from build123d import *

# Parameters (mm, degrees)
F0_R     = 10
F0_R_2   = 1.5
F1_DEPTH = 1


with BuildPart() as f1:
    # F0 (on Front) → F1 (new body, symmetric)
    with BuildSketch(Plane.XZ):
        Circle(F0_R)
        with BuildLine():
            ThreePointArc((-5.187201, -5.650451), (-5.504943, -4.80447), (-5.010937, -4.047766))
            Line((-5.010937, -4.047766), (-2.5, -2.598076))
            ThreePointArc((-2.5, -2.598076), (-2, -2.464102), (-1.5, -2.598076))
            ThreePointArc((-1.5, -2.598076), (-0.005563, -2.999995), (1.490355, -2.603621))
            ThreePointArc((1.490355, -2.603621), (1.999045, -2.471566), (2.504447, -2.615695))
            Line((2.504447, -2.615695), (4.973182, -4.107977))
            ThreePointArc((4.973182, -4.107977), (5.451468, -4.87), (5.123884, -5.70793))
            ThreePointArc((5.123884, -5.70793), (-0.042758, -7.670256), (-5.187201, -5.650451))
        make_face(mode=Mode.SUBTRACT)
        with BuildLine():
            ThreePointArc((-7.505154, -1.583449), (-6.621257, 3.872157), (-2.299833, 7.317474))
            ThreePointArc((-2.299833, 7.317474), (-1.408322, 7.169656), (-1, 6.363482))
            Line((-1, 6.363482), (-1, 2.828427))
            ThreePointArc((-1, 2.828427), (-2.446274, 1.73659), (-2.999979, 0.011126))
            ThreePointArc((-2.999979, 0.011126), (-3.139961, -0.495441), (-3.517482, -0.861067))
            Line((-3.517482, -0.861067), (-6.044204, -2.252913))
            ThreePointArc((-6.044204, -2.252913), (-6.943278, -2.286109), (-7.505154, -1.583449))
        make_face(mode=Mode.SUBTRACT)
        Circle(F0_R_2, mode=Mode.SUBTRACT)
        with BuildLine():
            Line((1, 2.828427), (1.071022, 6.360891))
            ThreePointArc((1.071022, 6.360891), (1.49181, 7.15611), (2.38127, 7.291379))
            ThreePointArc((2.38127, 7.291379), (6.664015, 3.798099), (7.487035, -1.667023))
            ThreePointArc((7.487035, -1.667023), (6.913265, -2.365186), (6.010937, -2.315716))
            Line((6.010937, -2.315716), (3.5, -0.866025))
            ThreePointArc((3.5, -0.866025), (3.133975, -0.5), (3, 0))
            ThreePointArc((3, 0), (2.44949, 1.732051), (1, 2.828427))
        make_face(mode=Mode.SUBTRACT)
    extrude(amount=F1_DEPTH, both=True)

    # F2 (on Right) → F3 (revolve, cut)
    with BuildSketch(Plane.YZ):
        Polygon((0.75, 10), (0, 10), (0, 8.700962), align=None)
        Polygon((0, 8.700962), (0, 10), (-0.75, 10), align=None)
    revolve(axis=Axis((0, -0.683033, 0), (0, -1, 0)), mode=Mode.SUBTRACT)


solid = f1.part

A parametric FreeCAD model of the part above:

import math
import FreeCAD as App
import Part
import Sketcher

V = App.Vector
Q = App.Units.Quantity

doc = App.newDocument("Part")
body = doc.addObject("PartDesign::Body", "Body")

sketch1 = body.newObject("Sketcher::SketchObject", "Sketch")
sketch1.AttachmentSupport = (doc.getObject("XZ_Plane"), [""])
sketch1.MapMode = "FlatFace"
sketch1.addGeometry([
    Part.Circle(V(0, 0, 0), V(0, 0, 1), 10),
    Part.ArcOfCircle(Part.Circle(V(0, 0, 0), V(0, 0, 1), 7.7), math.radians(-133), math.radians(-48)),
    Part.ArcOfCircle(Part.Circle(V(-4.5, -4.9, 0), V(0, 0, 1), 1), math.radians(120), math.radians(227)),
    Part.LineSegment(V(-5, -4, 0), V(-2.5, -2.6, 0)),
    Part.ArcOfCircle(Part.Circle(V(-2, -3.5, 0), V(0, 0, 1), 1), math.radians(60), math.radians(120)),
    Part.ArcOfCircle(Part.Circle(V(0, 0, 0), V(0, 0, 1), 3), math.radians(-120), math.radians(-60)),
    Part.ArcOfCircle(Part.Circle(V(2, -3.5, 0), V(0, 0, 1), 1), math.radians(59), math.radians(120)),
    Part.LineSegment(V(2.5, -2.6, 0), V(5, -4.1, 0)),
    Part.ArcOfCircle(Part.Circle(V(4.5, -5, 0), V(0, 0, 1), 1), math.radians(-48), math.radians(59)),
    Part.ArcOfCircle(Part.Circle(V(-6.5, -1.4, 0), V(0, 0, 1), 1), math.radians(-168), math.radians(-61)),
    Part.ArcOfCircle(Part.Circle(V(0, 0, 0), V(0, 0, 1), 7.7), math.radians(107), math.radians(192)),
    Part.ArcOfCircle(Part.Circle(V(-2, 6.4, 0), V(0, 0, 1), 1), math.radians(0), math.radians(107)),
    Part.LineSegment(V(-1, 6.4, 0), V(-1, 2.8, 0)),
    Part.ArcOfCircle(Part.Circle(V(0, 0, 0), V(0, 0, 1), 3), math.radians(109), math.radians(180)),
    Part.ArcOfCircle(Part.Circle(V(-4, 0, 0), V(0, 0, 1), 1), math.radians(-61), math.radians(0)),
    Part.LineSegment(V(-3.5, -0.9, 0), V(-6, -2.3, 0)),
    Part.Circle(V(0, 0, 0), V(0, 0, 1), 1.5),
    Part.ArcOfCircle(Part.Circle(V(0, 0, 0), V(0, 0, 1), 3), math.radians(0), math.radians(71)),
    Part.LineSegment(V(1, 2.8, 0), V(1.1, 6.4, 0)),
    Part.ArcOfCircle(Part.Circle(V(2.1, 6.3, 0), V(0, 0, 1), 1), math.radians(72), math.radians(179)),
    Part.ArcOfCircle(Part.Circle(V(0, 0, 0), V(0, 0, 1), 7.7), math.radians(-13), math.radians(72)),
    Part.ArcOfCircle(Part.Circle(V(6.5, -1.4, 0), V(0, 0, 1), 1), math.radians(-120), math.radians(-13)),
    Part.LineSegment(V(6, -2.3, 0), V(3.5, -0.9, 0)),
    Part.ArcOfCircle(Part.Circle(V(4, 0, 0), V(0, 0, 1), 1), math.radians(-180), math.radians(-120)),
], False)
sketch1.addConstraint([
    Sketcher.Constraint("Tangent", 1, 1, 2, 2),
    Sketcher.Constraint("Tangent", 2, 1, 3, 1),
    Sketcher.Constraint("Coincident", 3, 2, 4, 2),
    Sketcher.Constraint("Coincident", 4, 1, 5, 1),
    Sketcher.Constraint("Tangent", 5, 2, 6, 2),
    Sketcher.Constraint("Tangent", 6, 1, 7, 1),
    Sketcher.Constraint("Tangent", 7, 2, 8, 2),
    Sketcher.Constraint("Tangent", 8, 1, 1, 2),
    Sketcher.Constraint("Tangent", 9, 1, 10, 2),
    Sketcher.Constraint("Tangent", 10, 1, 11, 2),
    Sketcher.Constraint("Tangent", 11, 1, 12, 1),
    Sketcher.Constraint("Coincident", 12, 2, 13, 1),
    Sketcher.Constraint("Tangent", 13, 2, 14, 2),
    Sketcher.Constraint("Tangent", 14, 1, 15, 1),
    Sketcher.Constraint("Tangent", 15, 2, 9, 2),
    Sketcher.Constraint("Coincident", 17, 2, 18, 1),
    Sketcher.Constraint("Tangent", 18, 2, 19, 2),
    Sketcher.Constraint("Tangent", 19, 1, 20, 2),
    Sketcher.Constraint("Tangent", 20, 1, 21, 2),
    Sketcher.Constraint("Tangent", 21, 1, 22, 1),
    Sketcher.Constraint("Tangent", 22, 2, 23, 2),
    Sketcher.Constraint("Tangent", 23, 1, 17, 1),
    Sketcher.Constraint("Vertical", 12),
    Sketcher.Constraint("Coincident", 0, 3, -1, 1),
    Sketcher.Constraint("Coincident", 1, 3, -1, 1),
    Sketcher.Constraint("Coincident", 5, 3, -1, 1),
    Sketcher.Constraint("Coincident", 10, 3, -1, 1),
    Sketcher.Constraint("Coincident", 13, 3, -1, 1),
    Sketcher.Constraint("Coincident", 16, 3, -1, 1),
    Sketcher.Constraint("Coincident", 17, 3, -1, 1),
    Sketcher.Constraint("Coincident", 20, 3, -1, 1),
    Sketcher.Constraint("Equal", 4, 6),
    Sketcher.Constraint("Equal", 6, 8),
    Sketcher.Constraint("Equal", 8, 9),
    Sketcher.Constraint("Equal", 9, 11),
    Sketcher.Constraint("Equal", 5, 13),
    Sketcher.Constraint("Equal", 11, 14),
    Sketcher.Constraint("Equal", 13, 17),
    Sketcher.Constraint("Equal", 14, 19),
    Sketcher.Constraint("Equal", 10, 20),
    Sketcher.Constraint("Equal", 19, 21),
    Sketcher.Constraint("Equal", 21, 23),
    Sketcher.Constraint("PointOnObject", 23, 3, -1),
    Sketcher.Constraint("Horizontal", 3, 2, 4, 1),
    Sketcher.Constraint("Horizontal", 12, 2, 17, 2),
    Sketcher.Constraint("Vertical", 4, 3, 11, 3),
    Sketcher.Constraint("Equal", 7, 15),
    Sketcher.Constraint("Equal", 3, 22),
    Sketcher.Constraint("Diameter", 0, Q("20 mm")),
    Sketcher.Constraint("Diameter", 16, Q("3 mm")),
    Sketcher.Constraint("Radius", 2, Q("1.000001 mm")),
    Sketcher.Constraint("Radius", 5, Q("2.999998 mm")),
    Sketcher.Constraint("Radius", 8, Q("1 mm")),
    Sketcher.Constraint("Angle", 3, Q("29.999997 deg")),
    Sketcher.Constraint("Angle", 22, Q("149.999986 deg")),
    Sketcher.Constraint("DistanceX", 4, 3, -1, 1, Q("2 mm")),
    Sketcher.Constraint("DistanceX", 3, 2, 4, 1, Q("1 mm")),
    Sketcher.Constraint("Radius", 1, Q("7.670374 mm")),
    Sketcher.Constraint("DistanceY", 1, 1, 9, 1, Q("4.067002 mm")),
    Sketcher.Constraint("DistanceY", 2, 1, 14, 3, Q("4.0626 mm")),
    Sketcher.Constraint("DistanceY", 8, 3, 7, 2, Q("0.8558 mm")),
    Sketcher.Constraint("DistanceY", 19, 3, 18, 2, Q("0.020101 mm")),
])
pad1 = body.newObject("PartDesign::Pad", "Pad")
pad1.Profile = sketch1
pad1.Length = 2
pad1.Midplane = True

sketch2 = body.newObject("Sketcher::SketchObject", "Sketch001")
sketch2.AttachmentSupport = (doc.getObject("YZ_Plane"), [""])
sketch2.MapMode = "FlatFace"
sketch2.addGeometry([
    Part.LineSegment(V(0.8, 10, 0), V(-0.8, 10, 0)),
    Part.LineSegment(V(-0.8, 10, 0), V(0, 8.7, 0)),
    Part.LineSegment(V(0, 8.7, 0), V(0.8, 10, 0)),
], False)
sketch2.addConstraint([
    Sketcher.Constraint("Coincident", 0, 2, 1, 1),
    Sketcher.Constraint("Coincident", 1, 2, 2, 1),
    Sketcher.Constraint("Coincident", 2, 2, 0, 1),
    Sketcher.Constraint("Horizontal", 0),
    Sketcher.Constraint("PointOnObject", 1, 2, -2),
    Sketcher.Constraint("Equal", 1, 2),
    Sketcher.Constraint("Angle", 1, Q("-59.999998 deg")),
    Sketcher.Constraint("DistanceX", 0, 2, 0, 1, Q("1.5 mm")),
    Sketcher.Constraint("DistanceY", -1, 1, 0, 2, Q("10 mm")),
])
groove = body.newObject("PartDesign::Groove", "Groove")
groove.Profile = sketch2
groove.ReferenceAxis = (sketch2, ["H_Axis"])
groove.Angle = 360

doc.recompute()
